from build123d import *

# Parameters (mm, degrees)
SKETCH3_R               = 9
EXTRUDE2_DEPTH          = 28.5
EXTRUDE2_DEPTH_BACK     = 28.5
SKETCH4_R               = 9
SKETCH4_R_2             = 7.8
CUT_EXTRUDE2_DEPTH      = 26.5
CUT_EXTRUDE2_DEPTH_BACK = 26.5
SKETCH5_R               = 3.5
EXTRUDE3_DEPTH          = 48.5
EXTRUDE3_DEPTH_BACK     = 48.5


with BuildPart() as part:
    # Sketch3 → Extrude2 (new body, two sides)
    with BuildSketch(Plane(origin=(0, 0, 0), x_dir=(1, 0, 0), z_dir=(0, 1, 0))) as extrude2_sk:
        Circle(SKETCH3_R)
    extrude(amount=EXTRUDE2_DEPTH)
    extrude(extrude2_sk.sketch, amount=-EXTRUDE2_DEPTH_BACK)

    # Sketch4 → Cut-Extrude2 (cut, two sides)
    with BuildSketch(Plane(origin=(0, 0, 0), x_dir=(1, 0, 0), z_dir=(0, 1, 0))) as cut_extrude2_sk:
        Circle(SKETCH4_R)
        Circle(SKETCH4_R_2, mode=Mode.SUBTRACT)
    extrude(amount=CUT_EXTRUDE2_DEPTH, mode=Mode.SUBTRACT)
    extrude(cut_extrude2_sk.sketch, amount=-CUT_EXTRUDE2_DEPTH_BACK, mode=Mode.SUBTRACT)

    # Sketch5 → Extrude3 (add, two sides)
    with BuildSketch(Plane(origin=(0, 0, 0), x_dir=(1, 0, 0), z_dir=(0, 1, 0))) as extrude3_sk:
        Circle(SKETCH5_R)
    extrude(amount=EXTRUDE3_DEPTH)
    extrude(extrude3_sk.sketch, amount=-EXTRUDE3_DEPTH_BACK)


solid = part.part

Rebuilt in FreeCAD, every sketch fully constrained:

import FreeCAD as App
import Part
import Sketcher

V = App.Vector
Q = App.Units.Quantity

doc = App.newDocument("Part")
body = doc.addObject("PartDesign::Body", "Body")

sketch1 = body.newObject("Sketcher::SketchObject", "Sketch")
sketch1.AttachmentSupport = (doc.getObject("XZ_Plane"), [""])
sketch1.MapMode = "FlatFace"
sketch1.addGeometry(Part.Circle(V(0, 0, 0), V(0, 0, 1), 9), False)
sketch1.addConstraint([
    Sketcher.Constraint("Coincident", 0, 3, -1, 1),
    Sketcher.Constraint("Diameter", 0, Q("18 mm")),
])
pad1 = body.newObject("PartDesign::Pad", "Pad")
pad1.Profile = sketch1
pad1.Type = "TwoLengths"
pad1.Length = 28.5
pad1.Length2 = 28.5
pad1.Reversed = True

sketch2 = body.newObject("Sketcher::SketchObject", "Sketch001")
sketch2.AttachmentSupport = (doc.getObject("XZ_Plane"), [""])
sketch2.MapMode = "FlatFace"
sketch2.addGeometry([
    Part.Circle(V(0, 0, 0), V(0, 0, 1), 9),
    Part.Circle(V(0, 0, 0), V(0, 0, 1), 7.8),
], False)
sketch2.addConstraint([
    Sketcher.Constraint("Coincident", 0, 3, -1, 1),
    Sketcher.Constraint("Coincident", 1, 3, -1, 1),
    Sketcher.Constraint("Diameter", 0, Q("18 mm")),
    Sketcher.Constraint("Diameter", 1, Q("15.6 mm")),
])
pocket1 = body.newObject("PartDesign::Pocket", "Pocket")
pocket1.Profile = sketch2
pocket1.Type = "TwoLengths"
pocket1.Length = 26.5
pocket1.Length2 = 26.5

sketch3 = body.newObject("Sketcher::SketchObject", "Sketch002")
sketch3.AttachmentSupport = (doc.getObject("XZ_Plane"), [""])
sketch3.MapMode = "FlatFace"
sketch3.addGeometry(Part.Circle(V(0, 0, 0), V(0, 0, 1), 3.5), False)
sketch3.addConstraint([
    Sketcher.Constraint("Coincident", 0, 3, -1, 1),
    Sketcher.Constraint("Diameter", 0, Q("7 mm")),
])
pad2 = body.newObject("PartDesign::Pad", "Pad001")
pad2.Profile = sketch3
pad2.Type = "TwoLengths"
pad2.Length = 48.5
pad2.Length2 = 48.5
pad2.Reversed = True

doc.recompute()
